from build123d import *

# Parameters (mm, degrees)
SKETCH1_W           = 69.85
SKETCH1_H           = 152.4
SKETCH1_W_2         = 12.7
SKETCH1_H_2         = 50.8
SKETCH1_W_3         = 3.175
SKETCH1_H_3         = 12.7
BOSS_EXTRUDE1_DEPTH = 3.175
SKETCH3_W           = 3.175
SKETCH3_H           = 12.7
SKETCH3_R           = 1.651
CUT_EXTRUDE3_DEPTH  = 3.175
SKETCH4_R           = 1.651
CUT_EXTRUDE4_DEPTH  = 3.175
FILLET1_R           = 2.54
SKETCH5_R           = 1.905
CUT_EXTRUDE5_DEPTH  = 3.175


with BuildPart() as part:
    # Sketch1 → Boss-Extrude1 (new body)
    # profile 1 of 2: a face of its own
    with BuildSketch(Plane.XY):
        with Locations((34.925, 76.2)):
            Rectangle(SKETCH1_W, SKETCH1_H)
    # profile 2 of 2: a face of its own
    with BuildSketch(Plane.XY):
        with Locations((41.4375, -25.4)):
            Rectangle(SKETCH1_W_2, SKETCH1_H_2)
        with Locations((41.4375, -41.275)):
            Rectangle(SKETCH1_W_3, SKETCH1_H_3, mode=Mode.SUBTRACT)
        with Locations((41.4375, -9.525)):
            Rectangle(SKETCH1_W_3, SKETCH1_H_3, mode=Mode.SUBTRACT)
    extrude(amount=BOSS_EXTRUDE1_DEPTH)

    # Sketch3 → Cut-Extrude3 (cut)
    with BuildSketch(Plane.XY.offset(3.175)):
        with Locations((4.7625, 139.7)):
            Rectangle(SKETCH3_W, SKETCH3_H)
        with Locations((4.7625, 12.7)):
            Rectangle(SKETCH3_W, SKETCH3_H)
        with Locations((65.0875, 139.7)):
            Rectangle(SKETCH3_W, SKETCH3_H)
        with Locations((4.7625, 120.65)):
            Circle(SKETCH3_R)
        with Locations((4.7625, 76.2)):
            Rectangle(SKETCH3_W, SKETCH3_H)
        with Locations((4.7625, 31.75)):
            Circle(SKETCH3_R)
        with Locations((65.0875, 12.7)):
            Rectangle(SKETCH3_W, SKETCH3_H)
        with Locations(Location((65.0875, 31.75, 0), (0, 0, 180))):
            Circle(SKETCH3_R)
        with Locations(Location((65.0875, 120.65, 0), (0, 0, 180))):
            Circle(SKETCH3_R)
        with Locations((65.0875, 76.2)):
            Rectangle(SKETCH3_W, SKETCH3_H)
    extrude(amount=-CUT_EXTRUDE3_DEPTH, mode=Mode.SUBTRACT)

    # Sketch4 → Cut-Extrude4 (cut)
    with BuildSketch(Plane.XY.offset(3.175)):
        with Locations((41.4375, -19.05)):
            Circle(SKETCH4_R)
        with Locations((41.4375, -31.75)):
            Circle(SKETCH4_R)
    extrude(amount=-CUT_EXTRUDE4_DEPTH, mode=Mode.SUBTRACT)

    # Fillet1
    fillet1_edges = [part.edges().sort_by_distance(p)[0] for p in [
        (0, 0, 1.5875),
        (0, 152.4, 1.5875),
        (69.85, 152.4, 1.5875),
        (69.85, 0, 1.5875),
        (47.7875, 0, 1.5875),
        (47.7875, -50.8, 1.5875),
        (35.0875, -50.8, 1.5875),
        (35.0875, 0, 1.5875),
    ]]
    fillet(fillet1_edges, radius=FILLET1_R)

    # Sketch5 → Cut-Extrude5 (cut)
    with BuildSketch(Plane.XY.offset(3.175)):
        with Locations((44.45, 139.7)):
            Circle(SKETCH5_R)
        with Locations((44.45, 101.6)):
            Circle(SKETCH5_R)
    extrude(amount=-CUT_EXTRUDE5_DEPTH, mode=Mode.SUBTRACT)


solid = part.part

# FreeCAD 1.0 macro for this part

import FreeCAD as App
import Part
import Sketcher
Q = App.Units.Quantity


def edges_at(feature, points):
    """Names of the edges that pass closest to the given points."""
    edges = feature.Shape.Edges
    near = lambda p: min(range(len(edges)), key=lambda i: edges[i].distToShape(Part.Vertex(*p))[0])
    return sorted({f"Edge{near(p) + 1}" for p in points})

doc = App.newDocument("Part")
body = doc.addObject("PartDesign::Body", "Body")

# Sketch on XY plane
sketch1 = body.newObject("Sketcher::SketchObject", "Sketch")
sketch1.AttachmentSupport = (doc.getObject("XY_Plane"), [""])
sketch1.MapMode = "FlatFace"
sketch1.addGeometry(Part.LineSegment(App.Vector(0, 152.4, 0), App.Vector(0, 0, 0)), False)
sketch1.addGeometry(Part.LineSegment(App.Vector(0, 0, 0), App.Vector(35.1, 0, 0)), False)
sketch1.addGeometry(Part.LineSegment(App.Vector(35.1, 0, 0), App.Vector(35.1, -50.8, 0)), False)
sketch1.addGeometry(Part.LineSegment(App.Vector(35.1, -50.8, 0), App.Vector(47.8, -50.8, 0)), False)
sketch1.addGeometry(Part.LineSegment(App.Vector(47.8, -50.8, 0), App.Vector(47.8, 0, 0)), False)
sketch1.addGeometry(Part.LineSegment(App.Vector(47.8, 0, 0), App.Vector(69.8, 0, 0)), False)
sketch1.addGeometry(Part.LineSegment(App.Vector(69.8, 0, 0), App.Vector(69.8, 152.4, 0)), False)
sketch1.addGeometry(Part.LineSegment(App.Vector(69.8, 152.4, 0), App.Vector(0, 152.4, 0)), False)
sketch1.addGeometry(Part.LineSegment(App.Vector(39.9, -15.9, 0), App.Vector(39.9, -3.2, 0)), False)
sketch1.addGeometry(Part.LineSegment(App.Vector(39.9, -3.2, 0), App.Vector(43, -3.2, 0)), False)
sketch1.addGeometry(Part.LineSegment(App.Vector(43, -3.2, 0), App.Vector(43, -15.9, 0)), False)
sketch1.addGeometry(Part.LineSegment(App.Vector(43, -15.9, 0), App.Vector(39.9, -15.9, 0)), False)
sketch1.addGeometry(Part.LineSegment(App.Vector(43, -47.6, 0), App.Vector(39.9, -47.6, 0)), False)
sketch1.addGeometry(Part.LineSegment(App.Vector(39.9, -47.6, 0), App.Vector(39.9, -34.9, 0)), False)
sketch1.addGeometry(Part.LineSegment(App.Vector(39.9, -34.9, 0), App.Vector(43, -34.9, 0)), False)
sketch1.addGeometry(Part.LineSegment(App.Vector(43, -34.9, 0), App.Vector(43, -47.6, 0)), False)
sketch1.addConstraint(Sketcher.Constraint("Coincident", 0, 2, 1, 1))
sketch1.addConstraint(Sketcher.Constraint("Coincident", 1, 2, 2, 1))
sketch1.addConstraint(Sketcher.Constraint("Coincident", 2, 2, 3, 1))
sketch1.addConstraint(Sketcher.Constraint("Coincident", 3, 2, 4, 1))
sketch1.addConstraint(Sketcher.Constraint("Coincident", 4, 2, 5, 1))
sketch1.addConstraint(Sketcher.Constraint("Coincident", 5, 2, 6, 1))
sketch1.addConstraint(Sketcher.Constraint("Coincident", 6, 2, 7, 1))
sketch1.addConstraint(Sketcher.Constraint("Coincident", 7, 2, 0, 1))
sketch1.addConstraint(Sketcher.Constraint("Coincident", 8, 2, 9, 1))
sketch1.addConstraint(Sketcher.Constraint("Coincident", 9, 2, 10, 1))
sketch1.addConstraint(Sketcher.Constraint("Coincident", 10, 2, 11, 1))
sketch1.addConstraint(Sketcher.Constraint("Coincident", 11, 2, 8, 1))
sketch1.addConstraint(Sketcher.Constraint("Coincident", 12, 2, 13, 1))
sketch1.addConstraint(Sketcher.Constraint("Coincident", 13, 2, 14, 1))
sketch1.addConstraint(Sketcher.Constraint("Coincident", 14, 2, 15, 1))
sketch1.addConstraint(Sketcher.Constraint("Coincident", 15, 2, 12, 1))
sketch1.addConstraint(Sketcher.Constraint("Vertical", 0))
sketch1.addConstraint(Sketcher.Constraint("Horizontal", 1))
sketch1.addConstraint(Sketcher.Constraint("Vertical", 2))
sketch1.addConstraint(Sketcher.Constraint("Horizontal", 3))
sketch1.addConstraint(Sketcher.Constraint("Vertical", 4))
sketch1.addConstraint(Sketcher.Constraint("Horizontal", 5))
sketch1.addConstraint(Sketcher.Constraint("Vertical", 6))
sketch1.addConstraint(Sketcher.Constraint("Horizontal", 7))
sketch1.addConstraint(Sketcher.Constraint("Vertical", 8))
sketch1.addConstraint(Sketcher.Constraint("Horizontal", 9))
sketch1.addConstraint(Sketcher.Constraint("Vertical", 10))
sketch1.addConstraint(Sketcher.Constraint("Horizontal", 11))
sketch1.addConstraint(Sketcher.Constraint("Horizontal", 12))
sketch1.addConstraint(Sketcher.Constraint("Vertical", 13))
sketch1.addConstraint(Sketcher.Constraint("Horizontal", 14))
sketch1.addConstraint(Sketcher.Constraint("Vertical", 15))
sketch1.addConstraint(Sketcher.Constraint("Coincident", 0, 2, -1, 1))
sketch1.addConstraint(Sketcher.Constraint("PointOnObject", 4, 2, -1))
sketch1.addConstraint(Sketcher.Constraint("Vertical", 11, 2, 12, 2))
sketch1.addConstraint(Sketcher.Constraint("Vertical", 10, 2, 14, 2))
sketch1.addConstraint(Sketcher.Constraint("Equal", 3, 8))
sketch1.addConstraint(Sketcher.Constraint("Equal", 10, 13))
sketch1.addConstraint(Sketcher.Constraint("DistanceY", 0, 2, 0, 1, Q("6 in")))
sketch1.addConstraint(Sketcher.Constraint("DistanceY", 2, 2, 2, 1, Q("2 in")))
sketch1.addConstraint(Sketcher.Constraint("DistanceX", 3, 1, 3, 2, Q("0.5 in")))
sketch1.addConstraint(Sketcher.Constraint("DistanceX", 7, 2, 7, 1, Q("2.75 in")))
sketch1.addConstraint(Sketcher.Constraint("DistanceX", 9, 1, 9, 2, Q("0.125 in")))
sketch1.addConstraint(Sketcher.Constraint("DistanceY", 12, 2, 11, 2, Q("1.25 in")))
sketch1.addConstraint(Sketcher.Constraint("DistanceY", 8, 2, -1, 1, Q("0.125 in")))
sketch1.addConstraint(Sketcher.Constraint("DistanceX", 1, 2, 8, 2, Q("0.1875 in")))
sketch1.addConstraint(Sketcher.Constraint("DistanceX", 1, 1, 1, 2, 35.0875))
pad1 = body.newObject("PartDesign::Pad", "Pad")
pad1.Profile = sketch1
pad1.Length = Q("0.125 in")

# Sketch on XY plane
sketch2 = body.newObject("Sketcher::SketchObject", "Sketch001")
sketch2.AttachmentSupport = (doc.getObject("XY_Plane"), [""])
sketch2.MapMode = "FlatFace"
sketch2.AttachmentOffset = App.Placement(App.Vector(0, 0, 0.125 * 25.4), App.Rotation())
sketch2.addGeometry(Part.LineSegment(App.Vector(3.2, 146.1, 0), App.Vector(3.2, 133.3, 0)), False)
sketch2.addGeometry(Part.LineSegment(App.Vector(3.2, 133.3, 0), App.Vector(6.3, 133.3, 0)), False)
sketch2.addGeometry(Part.LineSegment(App.Vector(6.3, 133.3, 0), App.Vector(6.3, 146.1, 0)), False)
sketch2.addGeometry(Part.LineSegment(App.Vector(6.3, 146.1, 0), App.Vector(3.2, 146.1, 0)), False)
sketch2.addGeometry(Part.LineSegment(App.Vector(3.2, 19.1, 0), App.Vector(3.2, 6.3, 0)), False)
sketch2.addGeometry(Part.LineSegment(App.Vector(3.2, 6.3, 0), App.Vector(6.3, 6.3, 0)), False)
sketch2.addGeometry(Part.LineSegment(App.Vector(6.3, 6.3, 0), App.Vector(6.3, 19.1, 0)), False)
sketch2.addGeometry(Part.LineSegment(App.Vector(6.3, 19.1, 0), App.Vector(3.2, 19.1, 0)), False)
sketch2.addGeometry(Part.LineSegment(App.Vector(63.5, 146.1, 0), App.Vector(63.5, 133.3, 0)), False)
sketch2.addGeometry(Part.LineSegment(App.Vector(63.5, 133.3, 0), App.Vector(66.7, 133.3, 0)), False)
sketch2.addGeometry(Part.LineSegment(App.Vector(66.7, 133.3, 0), App.Vector(66.7, 146.1, 0)), False)
sketch2.addGeometry(Part.LineSegment(App.Vector(66.7, 146.1, 0), App.Vector(63.5, 146.1, 0)), False)
sketch2.addGeometry(Part.Circle(App.Vector(4.8, 120.7, 0), App.Vector(0, 0, 1), 1.7), False)
sketch2.addGeometry(Part.LineSegment(App.Vector(3.2, 82.5, 0), App.Vector(3.2, 69.8, 0)), False)
sketch2.addGeometry(Part.LineSegment(App.Vector(3.2, 69.8, 0), App.Vector(6.3, 69.8, 0)), False)
sketch2.addGeometry(Part.LineSegment(App.Vector(6.3, 69.8, 0), App.Vector(6.3, 82.5, 0)), False)
sketch2.addGeometry(Part.LineSegment(App.Vector(6.3, 82.5, 0), App.Vector(3.2, 82.5, 0)), False)
sketch2.addGeometry(Part.Circle(App.Vector(4.8, 31.8, 0), App.Vector(0, 0, 1), 1.7), False)
sketch2.addGeometry(Part.LineSegment(App.Vector(63.5, 19.1, 0), App.Vector(63.5, 6.3, 0)), False)
sketch2.addGeometry(Part.LineSegment(App.Vector(63.5, 6.3, 0), App.Vector(66.7, 6.3, 0)), False)
sketch2.addGeometry(Part.LineSegment(App.Vector(66.7, 6.3, 0), App.Vector(66.7, 19.1, 0)), False)
sketch2.addGeometry(Part.LineSegment(App.Vector(66.7, 19.1, 0), App.Vector(63.5, 19.1, 0)), False)
sketch2.addGeometry(Part.Circle(App.Vector(65.1, 31.8, 0), App.Vector(0, 0, 1), 1.7), False)
sketch2.addGeometry(Part.Circle(App.Vector(65.1, 120.7, 0), App.Vector(0, 0, 1), 1.7), False)
sketch2.addGeometry(Part.LineSegment(App.Vector(63.5, 82.5, 0), App.Vector(63.5, 69.8, 0)), False)
sketch2.addGeometry(Part.LineSegment(App.Vector(63.5, 69.8, 0), App.Vector(66.7, 69.8, 0)), False)
sketch2.addGeometry(Part.LineSegment(App.Vector(66.7, 69.8, 0), App.Vector(66.7, 82.5, 0)), False)
sketch2.addGeometry(Part.LineSegment(App.Vector(66.7, 82.5, 0), App.Vector(63.5, 82.5, 0)), False)
sketch2.addConstraint(Sketcher.Constraint("Coincident", 0, 2, 1, 1))
sketch2.addConstraint(Sketcher.Constraint("Coincident", 1, 2, 2, 1))
sketch2.addConstraint(Sketcher.Constraint("Coincident", 2, 2, 3, 1))
sketch2.addConstraint(Sketcher.Constraint("Coincident", 3, 2, 0, 1))
sketch2.addConstraint(Sketcher.Constraint("Coincident", 4, 2, 5, 1))
sketch2.addConstraint(Sketcher.Constraint("Coincident", 5, 2, 6, 1))
sketch2.addConstraint(Sketcher.Constraint("Coincident", 6, 2, 7, 1))
sketch2.addConstraint(Sketcher.Constraint("Coincident", 7, 2, 4, 1))
sketch2.addConstraint(Sketcher.Constraint("Coincident", 8, 2, 9, 1))
sketch2.addConstraint(Sketcher.Constraint("Coincident", 9, 2, 10, 1))
sketch2.addConstraint(Sketcher.Constraint("Coincident", 10, 2, 11, 1))
sketch2.addConstraint(Sketcher.Constraint("Coincident", 11, 2, 8, 1))
sketch2.addConstraint(Sketcher.Constraint("Coincident", 13, 2, 14, 1))
sketch2.addConstraint(Sketcher.Constraint("Coincident", 14, 2, 15, 1))
sketch2.addConstraint(Sketcher.Constraint("Coincident", 15, 2, 16, 1))
sketch2.addConstraint(Sketcher.Constraint("Coincident", 16, 2, 13, 1))
sketch2.addConstraint(Sketcher.Constraint("Coincident", 18, 2, 19, 1))
sketch2.addConstraint(Sketcher.Constraint("Coincident", 19, 2, 20, 1))
sketch2.addConstraint(Sketcher.Constraint("Coincident", 20, 2, 21, 1))
sketch2.addConstraint(Sketcher.Constraint("Coincident", 21, 2, 18, 1))
sketch2.addConstraint(Sketcher.Constraint("Coincident", 24, 2, 25, 1))
sketch2.addConstraint(Sketcher.Constraint("Coincident", 25, 2, 26, 1))
sketch2.addConstraint(Sketcher.Constraint("Coincident", 26, 2, 27, 1))
sketch2.addConstraint(Sketcher.Constraint("Coincident", 27, 2, 24, 1))
sketch2.addConstraint(Sketcher.Constraint("Vertical", 0))
sketch2.addConstraint(Sketcher.Constraint("Horizontal", 1))
sketch2.addConstraint(Sketcher.Constraint("Vertical", 2))
sketch2.addConstraint(Sketcher.Constraint("Horizontal", 3))
sketch2.addConstraint(Sketcher.Constraint("Vertical", 4))
sketch2.addConstraint(Sketcher.Constraint("Horizontal", 5))
sketch2.addConstraint(Sketcher.Constraint("Vertical", 6))
sketch2.addConstraint(Sketcher.Constraint("Horizontal", 7))
sketch2.addConstraint(Sketcher.Constraint("Vertical", 8))
sketch2.addConstraint(Sketcher.Constraint("Horizontal", 9))
sketch2.addConstraint(Sketcher.Constraint("Vertical", 10))
sketch2.addConstraint(Sketcher.Constraint("Horizontal", 11))
sketch2.addConstraint(Sketcher.Constraint("Vertical", 13))
sketch2.addConstraint(Sketcher.Constraint("Horizontal", 14))
sketch2.addConstraint(Sketcher.Constraint("Vertical", 15))
sketch2.addConstraint(Sketcher.Constraint("Horizontal", 16))
sketch2.addConstraint(Sketcher.Constraint("Vertical", 18))
sketch2.addConstraint(Sketcher.Constraint("Horizontal", 19))
sketch2.addConstraint(Sketcher.Constraint("Vertical", 20))
sketch2.addConstraint(Sketcher.Constraint("Horizontal", 21))
sketch2.addConstraint(Sketcher.Constraint("Vertical", 24))
sketch2.addConstraint(Sketcher.Constraint("Horizontal", 25))
sketch2.addConstraint(Sketcher.Constraint("Vertical", 26))
sketch2.addConstraint(Sketcher.Constraint("Horizontal", 27))
sketch2.addConstraint(Sketcher.Constraint("Equal", 12, 17))
sketch2.addConstraint(Sketcher.Constraint("Equal", 17, 22))
sketch2.addConstraint(Sketcher.Constraint("Equal", 22, 23))
sketch2.addConstraint(Sketcher.Constraint("Horizontal", 17, 3, 22, 3))
sketch2.addConstraint(Sketcher.Constraint("Horizontal", 12, 3, 23, 3))
sketch2.addConstraint(Sketcher.Constraint("Horizontal", 1, 2, 8, 2))
sketch2.addConstraint(Sketcher.Constraint("Horizontal", 3, 2, 10, 2))
sketch2.addConstraint(Sketcher.Constraint("Horizontal", 5, 2, 18, 2))
sketch2.addConstraint(Sketcher.Constraint("Horizontal", 7, 2, 20, 2))
sketch2.addConstraint(Sketcher.Constraint("Horizontal", 14, 2, 24, 2))
sketch2.addConstraint(Sketcher.Constraint("Horizontal", 16, 2, 26, 2))
sketch2.addConstraint(Sketcher.Constraint("Vertical", 12, 3, 17, 3))
sketch2.addConstraint(Sketcher.Constraint("Vertical", 22, 3, 23, 3))
sketch2.addConstraint(Sketcher.Constraint("Vertical", 3, 2, 4, 2))
sketch2.addConstraint(Sketcher.Constraint("Vertical", 2, 2, 5, 2))
sketch2.addConstraint(Sketcher.Constraint("Vertical", 7, 2, 13, 2))
sketch2.addConstraint(Sketcher.Constraint("Vertical", 6, 2, 14, 2))
sketch2.addConstraint(Sketcher.Constraint("Vertical", 11, 2, 18, 2))
sketch2.addConstraint(Sketcher.Constraint("Vertical", 10, 2, 19, 2))
sketch2.addConstraint(Sketcher.Constraint("Vertical", 21, 2, 24, 2))
sketch2.addConstraint(Sketcher.Constraint("Vertical", 20, 2, 25, 2))
sketch2.addConstraint(Sketcher.Constraint("Equal", 7, 9))
sketch2.addConstraint(Sketcher.Constraint("Equal", 2, 4))
sketch2.addConstraint(Sketcher.Constraint("Equal", 10, 13))
sketch2.addConstraint(Sketcher.Constraint("Diameter", 12, Q("0.13 in")))
sketch2.addConstraint(Sketcher.Constraint("DistanceY", 0, 2, 0, 1, Q("0.5 in")))
sketch2.addConstraint(Sketcher.Constraint("DistanceY", 17, 3, 0, 2, Q("4 in")))
sketch2.addConstraint(Sketcher.Constraint("DistanceY", 12, 3, 2, 2, Q("1 in")))
sketch2.addConstraint(Sketcher.Constraint("DistanceY", 4, 2, 17, 3, Q("1 in")))
sketch2.addConstraint(Sketcher.Constraint("DistanceY", 7, 2, 13, 2, Q("2 in")))
sketch2.addConstraint(Sketcher.Constraint("DistanceX", -1, 1, 8, 2, Q("2.5 in")))
sketch2.addConstraint(Sketcher.Constraint("DistanceX", 4, 2, 19, 2, Q("2.5 in")))
sketch2.addConstraint(Sketcher.Constraint("DistanceX", 1, 1, 1, 2, Q("0.125 in")))
sketch2.addConstraint(Sketcher.Constraint("DistanceY", -1, 1, 12, 3, Q("4.75 in")))
sketch2.addConstraint(Sketcher.Constraint("DistanceX", -1, 1, 12, 3, Q("0.1875 in")))
sketch2.addConstraint(Sketcher.Constraint("DistanceX", -1, 1, 22, 3, Q("2.5625 in")))
pocket1 = body.newObject("PartDesign::Pocket", "Pocket")
pocket1.Profile = sketch2
pocket1.Length = Q("0.125 in")

# Sketch on XY plane
sketch3 = body.newObject("Sketcher::SketchObject", "Sketch002")
sketch3.AttachmentSupport = (doc.getObject("XY_Plane"), [""])
sketch3.MapMode = "FlatFace"
sketch3.AttachmentOffset = App.Placement(App.Vector(0, 0, 0.125 * 25.4), App.Rotation())
sketch3.addGeometry(Part.Circle(App.Vector(41.4, -19.1, 0), App.Vector(0, 0, 1), 1.7), False)
sketch3.addGeometry(Part.Circle(App.Vector(41.4, -31.8, 0), App.Vector(0, 0, 1), 1.7), False)
sketch3.addConstraint(Sketcher.Constraint("Equal", 0, 1))
sketch3.addConstraint(Sketcher.Constraint("Vertical", 0, 3, 1, 3))
sketch3.addConstraint(Sketcher.Constraint("Diameter", 0, Q("0.13 in")))
sketch3.addConstraint(Sketcher.Constraint("DistanceY", 1, 3, 0, 3, Q("0.5 in")))
sketch3.addConstraint(Sketcher.Constraint("DistanceY", 0, 3, -1, 1, Q("0.75 in")))
sketch3.addConstraint(Sketcher.Constraint("DistanceX", -1, 1, 0, 3, 41.4375))
pocket2 = body.newObject("PartDesign::Pocket", "Pocket001")
pocket2.Profile = sketch3
pocket2.Length = Q("0.125 in")
doc.recompute()

fillet = body.newObject("PartDesign::Fillet", "Fillet")
fillet.Base = (pocket2, edges_at(pocket2, [
    (0, 0, 1.587),
    (0, 152.4, 1.587),
    (69.85, 152.4, 1.587),
    (69.85, 0, 1.587),
    (47.788, 0, 1.587),
    (47.788, -50.8, 1.587),
    (35.087, -50.8, 1.587),
    (35.087, 0, 1.587),
]))
fillet.Radius = Q("0.1 in")

# Sketch on XY plane
sketch4 = body.newObject("Sketcher::SketchObject", "Sketch003")
sketch4.AttachmentSupport = (doc.getObject("XY_Plane"), [""])
sketch4.MapMode = "FlatFace"
sketch4.AttachmentOffset = App.Placement(App.Vector(0, 0, 0.125 * 25.4), App.Rotation())
sketch4.addGeometry(Part.Circle(App.Vector(44.5, 139.7, 0), App.Vector(0, 0, 1), 1.9), False)
sketch4.addGeometry(Part.Circle(App.Vector(44.5, 101.6, 0), App.Vector(0, 0, 1), 1.9), False)
sketch4.addConstraint(Sketcher.Constraint("Equal", 0, 1))
sketch4.addConstraint(Sketcher.Constraint("Vertical", 0, 3, 1, 3))
sketch4.addConstraint(Sketcher.Constraint("Diameter", 0, Q("0.15 in")))
sketch4.addConstraint(Sketcher.Constraint("DistanceY", -1, 1, 1, 3, Q("4 in")))
sketch4.addConstraint(Sketcher.Constraint("DistanceY", -1, 1, 0, 3, Q("5.5 in")))
sketch4.addConstraint(Sketcher.Constraint("DistanceX", -1, 1, 0, 3, Q("1.75 in")))
pocket3 = body.newObject("PartDesign::Pocket", "Pocket002")
pocket3.Profile = sketch4
pocket3.Length = Q("0.125 in")

doc.recompute()
